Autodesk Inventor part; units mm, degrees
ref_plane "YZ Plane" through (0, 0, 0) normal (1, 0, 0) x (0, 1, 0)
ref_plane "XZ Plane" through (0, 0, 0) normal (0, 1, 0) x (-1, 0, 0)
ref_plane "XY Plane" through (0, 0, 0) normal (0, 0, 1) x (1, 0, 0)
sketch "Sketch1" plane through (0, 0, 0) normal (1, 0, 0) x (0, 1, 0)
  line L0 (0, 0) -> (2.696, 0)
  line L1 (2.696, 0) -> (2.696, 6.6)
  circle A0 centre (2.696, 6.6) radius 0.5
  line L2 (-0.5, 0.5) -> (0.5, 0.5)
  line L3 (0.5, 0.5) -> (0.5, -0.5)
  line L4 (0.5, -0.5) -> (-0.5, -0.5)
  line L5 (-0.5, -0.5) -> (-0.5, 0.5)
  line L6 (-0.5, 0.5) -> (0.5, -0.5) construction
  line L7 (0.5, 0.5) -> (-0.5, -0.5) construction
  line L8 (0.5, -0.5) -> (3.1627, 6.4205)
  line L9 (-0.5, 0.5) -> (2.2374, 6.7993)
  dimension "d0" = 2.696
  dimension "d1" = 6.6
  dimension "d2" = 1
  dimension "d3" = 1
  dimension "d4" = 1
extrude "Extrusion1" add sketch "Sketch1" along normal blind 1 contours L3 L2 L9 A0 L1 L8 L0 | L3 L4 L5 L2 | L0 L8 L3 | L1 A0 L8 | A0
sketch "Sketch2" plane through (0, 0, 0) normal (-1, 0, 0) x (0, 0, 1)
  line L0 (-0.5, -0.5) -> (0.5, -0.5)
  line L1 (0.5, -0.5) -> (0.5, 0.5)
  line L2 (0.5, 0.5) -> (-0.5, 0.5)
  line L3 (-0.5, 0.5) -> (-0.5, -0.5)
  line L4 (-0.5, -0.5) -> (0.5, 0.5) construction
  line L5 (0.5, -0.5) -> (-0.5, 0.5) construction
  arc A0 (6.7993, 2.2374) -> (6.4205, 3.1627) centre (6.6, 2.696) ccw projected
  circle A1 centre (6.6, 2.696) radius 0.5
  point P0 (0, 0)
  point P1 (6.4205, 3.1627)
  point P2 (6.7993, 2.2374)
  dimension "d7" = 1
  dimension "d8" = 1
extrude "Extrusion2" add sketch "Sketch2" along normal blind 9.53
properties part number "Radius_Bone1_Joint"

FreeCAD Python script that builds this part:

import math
import FreeCAD as App
import Part
import Sketcher

doc = App.newDocument("Part")
body = doc.addObject("PartDesign::Body", "Body")

sketch1 = doc.addObject("Sketcher::SketchObject", "Sketch")
body.addObject(sketch1)
sketch1.AttachmentSupport = (doc.YZ_Plane, [""])
sketch1.MapMode = "FlatFace"
sketch1.addGeometry([
    Part.LineSegment(App.Vector(2.2, 6.8, 0), App.Vector(-0.5, 0.5, 0)),
    Part.LineSegment(App.Vector(-0.5, 0.5, 0), App.Vector(-0.5, -0.5, 0)),
    Part.LineSegment(App.Vector(-0.5, -0.5, 0), App.Vector(0.5, -0.5, 0)),
    Part.LineSegment(App.Vector(0.5, -0.5, 0), App.Vector(3.2, 6.4, 0)),
    Part.ArcOfCircle(Part.Circle(App.Vector(2.7, 6.6, 0), App.Vector(0, 0, 1), 0.5), math.radians(-21), math.radians(157)),
], False)
sketch1.addConstraint([
    Sketcher.Constraint("Coincident", 0, 2, 1, 1),
    Sketcher.Constraint("Coincident", 1, 2, 2, 1),
    Sketcher.Constraint("Coincident", 2, 2, 3, 1),
    Sketcher.Constraint("Tangent", 3, 2, 4, 1),
    Sketcher.Constraint("Tangent", 4, 2, 0, 1),
    Sketcher.Constraint("Vertical", 1),
    Sketcher.Constraint("Horizontal", 2),
    Sketcher.Constraint("Symmetric", 0, 2, 2, 2, -1, 1),
    Sketcher.Constraint("Equal", 2, 1),
    Sketcher.Constraint("Radius", 4, 0.5),
    Sketcher.Constraint("DistanceX", 2, 1, 2, 2, 1.0),
    Sketcher.Constraint("DistanceY", -1, 1, 4, 3, 6.6),
    Sketcher.Constraint("DistanceX", -1, 1, 4, 3, 2.696),
])
pad1 = doc.addObject("PartDesign::Pad", "Pad")
body.addObject(pad1)
pad1.Profile = sketch1
pad1.Length = 1

sketch2 = doc.addObject("Sketcher::SketchObject", "Sketch001")
body.addObject(sketch2)
sketch2.AttachmentSupport = (doc.YZ_Plane, [""])
sketch2.MapMode = "FlatFace"
sketch2.addGeometry([
    Part.LineSegment(App.Vector(0.5, -0.5, 0), App.Vector(-0.5, -0.5, 0)),
    Part.LineSegment(App.Vector(-0.5, -0.5, 0), App.Vector(-0.5, 0.5, 0)),
    Part.LineSegment(App.Vector(-0.5, 0.5, 0), App.Vector(0.5, 0.5, 0)),
    Part.LineSegment(App.Vector(0.5, 0.5, 0), App.Vector(0.5, -0.5, 0)),
    Part.ArcOfCircle(Part.Circle(App.Vector(2.7, 6.6, 0), App.Vector(0, 0, 1), 0.5), math.radians(157), math.radians(339)),
    Part.ArcOfCircle(Part.Circle(App.Vector(2.7, 6.6, 0), App.Vector(0, 0, 1), 0.5), math.radians(-21), math.radians(157)),
], False)
sketch2.addConstraint([
    Sketcher.Constraint("Coincident", 0, 2, 1, 1),
    Sketcher.Constraint("Coincident", 1, 2, 2, 1),
    Sketcher.Constraint("Coincident", 2, 2, 3, 1),
    Sketcher.Constraint("Coincident", 3, 2, 0, 1),
    Sketcher.Constraint("Tangent", 4, 1, 5, 2),
    Sketcher.Constraint("Coincident", 5, 1, 4, 2),
    Sketcher.Constraint("Horizontal", 0),
    Sketcher.Constraint("Vertical", 1),
    Sketcher.Constraint("Horizontal", 2),
    Sketcher.Constraint("Vertical", 3),
    Sketcher.Constraint("Symmetric", 0, 2, 2, 2, -1, 1),
    Sketcher.Constraint("Equal", 2, 1),
    Sketcher.Constraint("Radius", 4, 0.5),
    Sketcher.Constraint("DistanceX", 0, 2, 0, 1, 1.0),
    Sketcher.Constraint("DistanceY", -1, 1, 4, 3, 6.6),
    Sketcher.Constraint("DistanceX", -1, 1, 4, 3, 2.696),
    Sketcher.Constraint("DistanceX", -1, 1, 4, 1, 2.2374),
    Sketcher.Constraint("DistanceX", -1, 1, 5, 1, 3.1627),
])
pad2 = doc.addObject("PartDesign::Pad", "Pad001")
body.addObject(pad2)
pad2.Profile = sketch2
pad2.Length = 9.53
pad2.Reversed = True

doc.recompute()
